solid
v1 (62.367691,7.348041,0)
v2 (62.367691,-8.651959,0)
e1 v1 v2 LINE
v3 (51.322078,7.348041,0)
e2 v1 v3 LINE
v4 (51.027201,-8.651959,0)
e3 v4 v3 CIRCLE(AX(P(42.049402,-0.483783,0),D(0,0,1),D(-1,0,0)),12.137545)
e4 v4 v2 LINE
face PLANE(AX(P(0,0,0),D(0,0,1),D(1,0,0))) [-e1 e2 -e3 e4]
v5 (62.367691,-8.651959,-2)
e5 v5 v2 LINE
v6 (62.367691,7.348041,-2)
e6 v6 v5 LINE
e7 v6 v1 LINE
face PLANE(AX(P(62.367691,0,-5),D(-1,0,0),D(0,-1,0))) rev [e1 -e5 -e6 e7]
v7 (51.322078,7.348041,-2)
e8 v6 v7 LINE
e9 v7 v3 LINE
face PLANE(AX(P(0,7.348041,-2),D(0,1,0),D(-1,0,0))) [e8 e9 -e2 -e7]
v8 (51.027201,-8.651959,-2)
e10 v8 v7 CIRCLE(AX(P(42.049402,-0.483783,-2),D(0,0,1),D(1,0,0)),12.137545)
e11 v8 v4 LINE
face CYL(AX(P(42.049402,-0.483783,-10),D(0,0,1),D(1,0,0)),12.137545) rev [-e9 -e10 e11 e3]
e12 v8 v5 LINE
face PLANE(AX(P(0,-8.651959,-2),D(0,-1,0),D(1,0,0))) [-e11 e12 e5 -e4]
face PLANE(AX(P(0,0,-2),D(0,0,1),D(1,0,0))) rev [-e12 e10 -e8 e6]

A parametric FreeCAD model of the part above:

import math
import FreeCAD as App
import Part
import Sketcher
from FreeCAD import Vector

doc = App.newDocument("Part")
body = doc.addObject("PartDesign::Body", "Body")

sketch1 = body.newObject("Sketcher::SketchObject", "Sketch")
sketch1.AttachmentSupport = (doc.getObject("XY_Plane"), [""])
sketch1.MapMode = "FlatFace"
sketch1.addGeometry(Part.LineSegment(Vector(40, 7, 0), Vector(40, -9, 0)), False)
sketch1.addGeometry(Part.LineSegment(Vector(40, -9, 0), Vector(67, -9, 0)), False)
sketch1.addGeometry(Part.LineSegment(Vector(67, -9, 0), Vector(67, 7, 0)), False)
sketch1.addGeometry(Part.LineSegment(Vector(67, 7, 0), Vector(40, 7, 0)), False)
sketch1.addConstraint(Sketcher.Constraint("Coincident", 0, 2, 1, 1))
sketch1.addConstraint(Sketcher.Constraint("Coincident", 1, 2, 2, 1))
sketch1.addConstraint(Sketcher.Constraint("Coincident", 2, 2, 3, 1))
sketch1.addConstraint(Sketcher.Constraint("Coincident", 3, 2, 0, 1))
sketch1.addConstraint(Sketcher.Constraint("Horizontal", 1))
sketch1.addConstraint(Sketcher.Constraint("Vertical", 2))
sketch1.addConstraint(Sketcher.Constraint("Horizontal", 3))
sketch1.addConstraint(Sketcher.Constraint("DistanceY", 2, 1, 2, 2, 16.0))
sketch1.addConstraint(Sketcher.Constraint("DistanceX", 3, 2, 0, 2, 0.3375))
sketch1.addConstraint(Sketcher.Constraint("DistanceX", 1, 1, 1, 2, 27.369487))
sketch1.addConstraint(Sketcher.Constraint("DistanceY", 0, 2, -1, 1, 8.651959))
sketch1.addConstraint(Sketcher.Constraint("DistanceX", -1, 1, 1, 2, 67.367691))
pad1 = body.newObject("PartDesign::Pad", "Pad")
pad1.Profile = sketch1
pad1.Length = 2
pad1.Reversed = True

sketch2 = body.newObject("Sketcher::SketchObject", "Sketch001")
sketch2.AttachmentSupport = (doc.getObject("XY_Plane"), [""])
sketch2.MapMode = "FlatFace"
sketch2.addGeometry(Part.LineSegment(Vector(62, 7, 0), Vector(62, -9, 0)), False)
sketch2.addGeometry(Part.LineSegment(Vector(62, -9, 0), Vector(67, -9, 0)), False)
sketch2.addGeometry(Part.LineSegment(Vector(67, -9, 0), Vector(67, 7, 0)), False)
sketch2.addGeometry(Part.LineSegment(Vector(67, 7, 0), Vector(62, 7, 0)), False)
sketch2.addConstraint(Sketcher.Constraint("Coincident", 0, 2, 1, 1))
sketch2.addConstraint(Sketcher.Constraint("Coincident", 1, 2, 2, 1))
sketch2.addConstraint(Sketcher.Constraint("Coincident", 2, 2, 3, 1))
sketch2.addConstraint(Sketcher.Constraint("Coincident", 3, 2, 0, 1))
sketch2.addConstraint(Sketcher.Constraint("Vertical", 0))
sketch2.addConstraint(Sketcher.Constraint("Horizontal", 1))
sketch2.addConstraint(Sketcher.Constraint("Vertical", 2))
sketch2.addConstraint(Sketcher.Constraint("Horizontal", 3))
sketch2.addConstraint(Sketcher.Constraint("DistanceX", 1, 1, 1, 2, 5.0))
sketch2.addConstraint(Sketcher.Constraint("DistanceY", 0, 2, 0, 1, 16.0))
sketch2.addConstraint(Sketcher.Constraint("DistanceX", -1, 1, 0, 2, 62.367691))
sketch2.addConstraint(Sketcher.Constraint("DistanceY", 0, 2, -1, 1, 8.651959))
pocket1 = body.newObject("PartDesign::Pocket", "Pocket")
pocket1.Profile = sketch2
pocket1.Length = 5

sketch3 = body.newObject("Sketcher::SketchObject", "Sketch002")
sketch3.AttachmentSupport = (doc.getObject("XY_Plane"), [""])
sketch3.MapMode = "FlatFace"
sketch3.addGeometry(Part.LineSegment(Vector(40, 7, 0), Vector(40, -9, 0)), False)
sketch3.addGeometry(Part.LineSegment(Vector(40, -9, 0), Vector(48, -9, 0)), False)
sketch3.addGeometry(Part.ArcOfCircle(Part.Circle(Vector(39, 0, 0), Vector(0, 0, 1), 12), math.radians(-45), math.radians(37)), False)
sketch3.addGeometry(Part.LineSegment(Vector(49, 7, 0), Vector(40, 7, 0)), False)
sketch3.addConstraint(Sketcher.Constraint("Coincident", 0, 2, 1, 1))
sketch3.addConstraint(Sketcher.Constraint("Coincident", 1, 2, 2, 1))
sketch3.addConstraint(Sketcher.Constraint("Coincident", 2, 2, 3, 1))
sketch3.addConstraint(Sketcher.Constraint("Coincident", 3, 2, 0, 1))
sketch3.addConstraint(Sketcher.Constraint("Horizontal", 1))
sketch3.addConstraint(Sketcher.Constraint("Horizontal", 3))
sketch3.addConstraint(Sketcher.Constraint("DistanceY", 1, 2, 2, 2, 16.0))
sketch3.addConstraint(Sketcher.Constraint("Radius", 2, 12.238523))
sketch3.addConstraint(Sketcher.Constraint("DistanceX", 3, 2, 3, 1, 9.62927))
sketch3.addConstraint(Sketcher.Constraint("DistanceX", 3, 2, 0, 2, 0.3375))
sketch3.addConstraint(Sketcher.Constraint("DistanceX", 1, 1, 1, 2, 8.127006))
sketch3.addConstraint(Sketcher.Constraint("DistanceY", -1, 1, 2, 3, 0.019171))
sketch3.addConstraint(Sketcher.Constraint("DistanceX", -1, 1, 1, 2, 48.12521))
pocket2 = body.newObject("PartDesign::Pocket", "Pocket001")
pocket2.Profile = sketch3
pocket2.Length = 10

sketch4 = body.newObject("Sketcher::SketchObject", "Sketch003")
sketch4.AttachmentSupport = (doc.getObject("XY_Plane"), [""])
sketch4.MapMode = "FlatFace"
sketch4.addGeometry(Part.LineSegment(Vector(48.1, -8.7, 0), Vector(51, -8.7, 0)), False)
sketch4.addGeometry(Part.ArcOfCircle(Part.Circle(Vector(42, -0.5, 0), Vector(0, 0, 1), 12.1), math.radians(-42), math.radians(40)), False)
sketch4.addGeometry(Part.LineSegment(Vector(51.3, 7.3, 0), Vector(49.3, 7.3, 0)), False)
sketch4.addGeometry(Part.LineSegment(Vector(49.3, 7.3, 0), Vector(48.1, -8.7, 0)), False)
sketch4.addConstraint(Sketcher.Constraint("Coincident", 0, 2, 1, 1))
sketch4.addConstraint(Sketcher.Constraint("Coincident", 1, 2, 2, 1))
sketch4.addConstraint(Sketcher.Constraint("Coincident", 2, 2, 3, 1))
sketch4.addConstraint(Sketcher.Constraint("Coincident", 3, 2, 0, 1))
sketch4.addConstraint(Sketcher.Constraint("Horizontal", 0))
sketch4.addConstraint(Sketcher.Constraint("Horizontal", 2))
sketch4.addConstraint(Sketcher.Constraint("DistanceY", 0, 2, 1, 2, 16.0))
sketch4.addConstraint(Sketcher.Constraint("Radius", 1, 12.137545))
sketch4.addConstraint(Sketcher.Constraint("DistanceX", 0, 1, 0, 2, 2.901991))
sketch4.addConstraint(Sketcher.Constraint("DistanceX", -1, 1, 1, 3, 42.049402))
sketch4.addConstraint(Sketcher.Constraint("DistanceX", -1, 1, 0, 2, 51.027201))
sketch4.addConstraint(Sketcher.Constraint("Distance", 3, 16.04234))
sketch4.addConstraint(Sketcher.Constraint("DistanceY", 0, 2, -1, 1, 8.651959))
pocket3 = body.newObject("PartDesign::Pocket", "Pocket002")
pocket3.Profile = sketch4
pocket3.Length = 10

doc.recompute()
